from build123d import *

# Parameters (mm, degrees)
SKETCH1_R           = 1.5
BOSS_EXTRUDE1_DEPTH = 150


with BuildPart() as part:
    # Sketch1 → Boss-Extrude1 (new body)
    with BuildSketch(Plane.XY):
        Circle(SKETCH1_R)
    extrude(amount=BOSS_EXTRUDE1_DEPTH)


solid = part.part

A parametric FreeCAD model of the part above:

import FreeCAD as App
import Part
import Sketcher
from FreeCAD import Vector

doc = App.newDocument("Part")
params = doc.addObject("Spreadsheet::Sheet", "Params")
for row, (alias, value) in enumerate([
    ("sketch1_diameter", "3 mm"),
    ("pad1_length", "150 mm"),
], start=1):
    params.set(f"A{row}", alias)
    params.set(f"B{row}", "=" + value)
    params.setAlias(f"B{row}", alias)

body = doc.addObject("PartDesign::Body", "Body")

# Sketch on XY plane
sketch1 = body.newObject("Sketcher::SketchObject", "Sketch")
sketch1.AttachmentSupport = (doc.getObject("XY_Plane"), [""])
sketch1.MapMode = "FlatFace"
sketch1.addGeometry(Part.Circle(Vector(0, 0, 0), Vector(0, 0, 1), 1.5), False)
sketch1.addConstraint(Sketcher.Constraint("Coincident", 0, 3, -1, 1))
sketch1.addConstraint(Sketcher.Constraint("Diameter", 0, 3.0))
sketch1.setExpression("Constraints[1]", "Params.sketch1_diameter")
pad1 = body.newObject("PartDesign::Pad", "Pad")
pad1.Profile = sketch1
pad1.setExpression("Length", "Params.pad1_length")

doc.recompute()
